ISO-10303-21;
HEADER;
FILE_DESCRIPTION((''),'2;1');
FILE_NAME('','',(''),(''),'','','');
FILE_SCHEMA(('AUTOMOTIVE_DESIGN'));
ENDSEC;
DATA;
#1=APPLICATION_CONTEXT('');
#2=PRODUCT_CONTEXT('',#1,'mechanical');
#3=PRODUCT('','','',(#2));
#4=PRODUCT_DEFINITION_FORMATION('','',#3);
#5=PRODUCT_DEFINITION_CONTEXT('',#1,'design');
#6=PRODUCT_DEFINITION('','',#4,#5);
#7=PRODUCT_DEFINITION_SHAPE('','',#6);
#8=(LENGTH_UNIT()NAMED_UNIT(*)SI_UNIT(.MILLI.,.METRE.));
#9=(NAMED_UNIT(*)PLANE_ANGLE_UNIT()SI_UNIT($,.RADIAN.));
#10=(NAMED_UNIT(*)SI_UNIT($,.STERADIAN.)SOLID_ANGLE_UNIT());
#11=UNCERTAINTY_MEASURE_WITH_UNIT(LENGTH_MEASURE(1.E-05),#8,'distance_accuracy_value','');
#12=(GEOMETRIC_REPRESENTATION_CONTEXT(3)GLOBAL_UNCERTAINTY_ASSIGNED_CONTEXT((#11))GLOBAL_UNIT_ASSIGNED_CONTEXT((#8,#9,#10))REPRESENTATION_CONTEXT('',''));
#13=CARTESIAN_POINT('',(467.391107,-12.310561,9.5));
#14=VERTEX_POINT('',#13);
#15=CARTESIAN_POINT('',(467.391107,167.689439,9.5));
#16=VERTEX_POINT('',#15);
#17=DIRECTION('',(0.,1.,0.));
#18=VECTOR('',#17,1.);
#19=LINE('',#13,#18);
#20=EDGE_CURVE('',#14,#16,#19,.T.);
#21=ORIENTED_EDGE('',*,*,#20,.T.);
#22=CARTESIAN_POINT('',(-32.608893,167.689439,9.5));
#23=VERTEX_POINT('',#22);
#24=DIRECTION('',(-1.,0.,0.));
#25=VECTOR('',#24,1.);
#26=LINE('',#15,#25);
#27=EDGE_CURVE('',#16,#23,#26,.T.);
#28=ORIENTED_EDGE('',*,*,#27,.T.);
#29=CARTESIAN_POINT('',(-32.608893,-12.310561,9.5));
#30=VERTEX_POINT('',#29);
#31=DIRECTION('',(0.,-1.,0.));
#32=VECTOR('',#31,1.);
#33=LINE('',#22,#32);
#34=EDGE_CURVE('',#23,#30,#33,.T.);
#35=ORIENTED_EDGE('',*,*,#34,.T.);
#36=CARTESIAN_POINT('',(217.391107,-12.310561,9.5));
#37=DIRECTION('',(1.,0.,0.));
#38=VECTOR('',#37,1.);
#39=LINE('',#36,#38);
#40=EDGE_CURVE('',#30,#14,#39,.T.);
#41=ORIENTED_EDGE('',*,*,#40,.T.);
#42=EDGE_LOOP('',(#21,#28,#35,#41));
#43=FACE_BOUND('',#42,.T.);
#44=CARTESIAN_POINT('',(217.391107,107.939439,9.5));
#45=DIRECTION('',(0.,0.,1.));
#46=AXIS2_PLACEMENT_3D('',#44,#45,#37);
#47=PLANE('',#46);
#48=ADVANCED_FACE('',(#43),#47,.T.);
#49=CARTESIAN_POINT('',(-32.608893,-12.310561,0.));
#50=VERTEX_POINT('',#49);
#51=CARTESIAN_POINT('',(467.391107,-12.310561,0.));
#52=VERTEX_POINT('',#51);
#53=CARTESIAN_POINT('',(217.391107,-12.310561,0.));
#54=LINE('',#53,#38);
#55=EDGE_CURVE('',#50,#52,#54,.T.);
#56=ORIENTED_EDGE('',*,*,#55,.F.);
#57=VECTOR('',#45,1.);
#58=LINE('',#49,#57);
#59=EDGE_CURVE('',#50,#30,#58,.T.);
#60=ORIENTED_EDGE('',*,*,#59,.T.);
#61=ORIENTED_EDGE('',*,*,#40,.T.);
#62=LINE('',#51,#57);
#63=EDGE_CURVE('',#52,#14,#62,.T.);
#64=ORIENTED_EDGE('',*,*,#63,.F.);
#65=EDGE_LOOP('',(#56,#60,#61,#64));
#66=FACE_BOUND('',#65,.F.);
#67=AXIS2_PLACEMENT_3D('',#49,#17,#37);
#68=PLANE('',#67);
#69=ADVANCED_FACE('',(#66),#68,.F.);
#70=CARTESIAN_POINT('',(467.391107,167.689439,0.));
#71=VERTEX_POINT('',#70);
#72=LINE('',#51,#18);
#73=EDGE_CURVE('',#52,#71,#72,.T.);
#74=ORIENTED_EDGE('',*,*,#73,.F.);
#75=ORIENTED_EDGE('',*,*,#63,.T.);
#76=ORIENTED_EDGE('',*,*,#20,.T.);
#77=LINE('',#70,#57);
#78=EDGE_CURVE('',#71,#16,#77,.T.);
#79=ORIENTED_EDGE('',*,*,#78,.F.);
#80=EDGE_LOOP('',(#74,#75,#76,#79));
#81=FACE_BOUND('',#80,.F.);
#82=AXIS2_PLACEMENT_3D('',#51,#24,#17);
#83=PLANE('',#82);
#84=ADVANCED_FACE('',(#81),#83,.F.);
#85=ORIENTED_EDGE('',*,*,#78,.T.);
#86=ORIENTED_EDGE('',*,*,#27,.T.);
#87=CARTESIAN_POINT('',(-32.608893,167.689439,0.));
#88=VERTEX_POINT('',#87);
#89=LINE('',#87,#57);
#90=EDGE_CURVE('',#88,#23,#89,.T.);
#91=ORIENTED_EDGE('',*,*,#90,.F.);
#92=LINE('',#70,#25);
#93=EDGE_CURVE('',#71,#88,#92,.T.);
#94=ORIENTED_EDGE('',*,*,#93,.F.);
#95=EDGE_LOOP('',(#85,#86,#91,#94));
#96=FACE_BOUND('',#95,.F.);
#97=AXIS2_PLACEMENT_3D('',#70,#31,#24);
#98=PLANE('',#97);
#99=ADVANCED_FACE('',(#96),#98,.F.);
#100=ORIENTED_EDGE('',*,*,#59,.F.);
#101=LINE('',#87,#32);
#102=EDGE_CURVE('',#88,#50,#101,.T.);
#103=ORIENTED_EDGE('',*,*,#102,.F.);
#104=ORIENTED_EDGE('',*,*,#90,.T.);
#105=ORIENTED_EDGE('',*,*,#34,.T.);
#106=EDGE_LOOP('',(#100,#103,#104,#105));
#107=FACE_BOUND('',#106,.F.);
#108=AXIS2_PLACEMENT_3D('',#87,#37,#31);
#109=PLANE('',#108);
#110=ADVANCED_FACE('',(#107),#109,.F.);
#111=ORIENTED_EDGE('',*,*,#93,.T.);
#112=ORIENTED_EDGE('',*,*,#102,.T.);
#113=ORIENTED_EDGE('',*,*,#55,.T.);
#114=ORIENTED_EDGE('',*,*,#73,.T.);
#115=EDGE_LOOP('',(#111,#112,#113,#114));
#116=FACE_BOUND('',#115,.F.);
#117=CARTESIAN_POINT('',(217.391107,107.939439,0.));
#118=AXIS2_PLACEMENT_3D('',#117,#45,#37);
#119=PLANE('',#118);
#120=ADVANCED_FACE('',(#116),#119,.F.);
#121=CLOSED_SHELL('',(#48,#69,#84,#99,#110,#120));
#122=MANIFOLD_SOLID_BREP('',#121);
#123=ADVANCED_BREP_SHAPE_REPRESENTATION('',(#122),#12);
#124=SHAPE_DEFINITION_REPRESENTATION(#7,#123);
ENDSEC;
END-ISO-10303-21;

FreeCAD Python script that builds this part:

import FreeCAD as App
import Part
import Sketcher
Q = App.Units.Quantity


def add_polygon(sketch, points):
    """Adds a closed chain of lines whose ends are joined by coincident constraints."""
    first, n = sketch.GeometryCount, len(points)
    for a, b in zip(points, points[1:] + points[:1]):
        sketch.addGeometry(Part.LineSegment(App.Vector(*a, 0), App.Vector(*b, 0)), False)
    for i in range(n):
        sketch.addConstraint(Sketcher.Constraint("Coincident", first + i, 2, first + (i + 1) % n, 1))

doc = App.newDocument("Part")
body = doc.addObject("PartDesign::Body", "Body")

sketch1 = body.newObject("Sketcher::SketchObject", "Sketch")
sketch1.AttachmentSupport = (doc.getObject("XY_Plane"), [""])
sketch1.MapMode = "FlatFace"
add_polygon(sketch1, [(467, 168), (-33, 168), (-33, -12), (467, -12)])
sketch1.addConstraint([
    Sketcher.Constraint("Horizontal", 0),
    Sketcher.Constraint("Vertical", 1),
    Sketcher.Constraint("Horizontal", 2),
    Sketcher.Constraint("Vertical", 3),
    Sketcher.Constraint("DistanceX", 0, 2, 0, 1, Q("500 mm")),
    Sketcher.Constraint("DistanceY", 1, 2, 1, 1, Q("180 mm")),
    Sketcher.Constraint("DistanceY", -1, 1, 0, 2, Q("167.689439 mm")),
    Sketcher.Constraint("DistanceX", 0, 2, -1, 1, Q("32.608893 mm")),
])
pad1 = body.newObject("PartDesign::Pad", "Pad")
pad1.Profile = sketch1
pad1.Length = 9.5

doc.recompute()
